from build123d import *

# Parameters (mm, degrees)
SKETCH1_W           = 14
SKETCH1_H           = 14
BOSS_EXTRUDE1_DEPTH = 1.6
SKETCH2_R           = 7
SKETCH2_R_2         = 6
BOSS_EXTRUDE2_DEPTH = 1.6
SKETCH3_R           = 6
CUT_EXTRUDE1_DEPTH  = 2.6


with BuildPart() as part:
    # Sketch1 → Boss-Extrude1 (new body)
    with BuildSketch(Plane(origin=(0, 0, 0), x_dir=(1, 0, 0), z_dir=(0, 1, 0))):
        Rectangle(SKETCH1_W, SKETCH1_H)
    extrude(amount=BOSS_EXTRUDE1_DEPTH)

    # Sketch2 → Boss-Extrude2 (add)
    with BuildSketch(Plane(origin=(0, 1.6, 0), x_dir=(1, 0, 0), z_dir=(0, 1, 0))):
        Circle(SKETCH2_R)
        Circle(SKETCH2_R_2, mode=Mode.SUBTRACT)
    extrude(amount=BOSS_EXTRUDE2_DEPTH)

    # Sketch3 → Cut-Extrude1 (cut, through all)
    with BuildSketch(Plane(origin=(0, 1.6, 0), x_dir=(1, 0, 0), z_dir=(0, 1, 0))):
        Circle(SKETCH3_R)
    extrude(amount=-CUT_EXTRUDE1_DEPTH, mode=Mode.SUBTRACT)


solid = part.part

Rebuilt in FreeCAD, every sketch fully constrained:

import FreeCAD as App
import Part
import Sketcher
Q = App.Units.Quantity


def add_polygon(sketch, points):
    """Adds a closed chain of lines whose ends are joined by coincident constraints."""
    first, n = sketch.GeometryCount, len(points)
    for a, b in zip(points, points[1:] + points[:1]):
        sketch.addGeometry(Part.LineSegment(App.Vector(*a, 0), App.Vector(*b, 0)), False)
    for i in range(n):
        sketch.addConstraint(Sketcher.Constraint("Coincident", first + i, 2, first + (i + 1) % n, 1))

doc = App.newDocument("Part")
body = doc.addObject("PartDesign::Body", "Body")

# Sketch on XZ plane
sketch1 = doc.addObject("Sketcher::SketchObject", "Sketch")
body.addObject(sketch1)
sketch1.AttachmentSupport = (doc.XZ_Plane, [""])
sketch1.MapMode = "FlatFace"
add_polygon(sketch1, [(-7, -7), (-7, 7), (7, 7), (7, -7)])  # lines 0-3
sketch1.addConstraint([
    Sketcher.Constraint("Vertical", 0),
    Sketcher.Constraint("Horizontal", 1),
    Sketcher.Constraint("Vertical", 2),
    Sketcher.Constraint("Horizontal", 3),
    Sketcher.Constraint("Symmetric", 0, 2, 2, 2, -1, 1),
    Sketcher.Constraint("Equal", 3, 0),
    Sketcher.Constraint("DistanceX", 1, 1, 1, 2, Q("14 mm")),
])
pad1 = doc.addObject("PartDesign::Pad", "Pad")
body.addObject(pad1)
pad1.Profile = sketch1
pad1.Length = 1.6
pad1.Reversed = True

# Sketch on XZ plane
sketch2 = doc.addObject("Sketcher::SketchObject", "Sketch001")
body.addObject(sketch2)
sketch2.AttachmentSupport = (doc.XZ_Plane, [""])
sketch2.MapMode = "FlatFace"
sketch2.AttachmentOffset = App.Placement(App.Vector(0, 0, -1.6), App.Rotation())
sketch2.addGeometry([
    Part.Circle(App.Vector(0, 0, 0), App.Vector(0, 0, 1), 7),
    Part.Circle(App.Vector(0, 0, 0), App.Vector(0, 0, 1), 6),
], False)
sketch2.addConstraint([
    Sketcher.Constraint("Coincident", 0, 3, -1, 1),
    Sketcher.Constraint("Coincident", 1, 3, -1, 1),
    Sketcher.Constraint("Diameter", 0, Q("14 mm")),
    Sketcher.Constraint("Diameter", 1, Q("12 mm")),
])
pad2 = doc.addObject("PartDesign::Pad", "Pad001")
body.addObject(pad2)
pad2.Profile = sketch2
pad2.Length = 1.6
pad2.Reversed = True

# Sketch on XZ plane
sketch3 = doc.addObject("Sketcher::SketchObject", "Sketch002")
body.addObject(sketch3)
sketch3.AttachmentSupport = (doc.XZ_Plane, [""])
sketch3.MapMode = "FlatFace"
sketch3.AttachmentOffset = App.Placement(App.Vector(0, 0, -1.6), App.Rotation())
sketch3.addGeometry(Part.Circle(App.Vector(0, 0, 0), App.Vector(0, 0, 1), 6), False)
sketch3.addConstraint([
    Sketcher.Constraint("Coincident", 0, 3, -1, 1),
    Sketcher.Constraint("Diameter", 0, Q("12 mm")),
])
pocket1 = doc.addObject("PartDesign::Pocket", "Pocket")
body.addObject(pocket1)
pocket1.Profile = sketch3
pocket1.Type = "ThroughAll"
pocket1.Reversed = True

doc.recompute()
